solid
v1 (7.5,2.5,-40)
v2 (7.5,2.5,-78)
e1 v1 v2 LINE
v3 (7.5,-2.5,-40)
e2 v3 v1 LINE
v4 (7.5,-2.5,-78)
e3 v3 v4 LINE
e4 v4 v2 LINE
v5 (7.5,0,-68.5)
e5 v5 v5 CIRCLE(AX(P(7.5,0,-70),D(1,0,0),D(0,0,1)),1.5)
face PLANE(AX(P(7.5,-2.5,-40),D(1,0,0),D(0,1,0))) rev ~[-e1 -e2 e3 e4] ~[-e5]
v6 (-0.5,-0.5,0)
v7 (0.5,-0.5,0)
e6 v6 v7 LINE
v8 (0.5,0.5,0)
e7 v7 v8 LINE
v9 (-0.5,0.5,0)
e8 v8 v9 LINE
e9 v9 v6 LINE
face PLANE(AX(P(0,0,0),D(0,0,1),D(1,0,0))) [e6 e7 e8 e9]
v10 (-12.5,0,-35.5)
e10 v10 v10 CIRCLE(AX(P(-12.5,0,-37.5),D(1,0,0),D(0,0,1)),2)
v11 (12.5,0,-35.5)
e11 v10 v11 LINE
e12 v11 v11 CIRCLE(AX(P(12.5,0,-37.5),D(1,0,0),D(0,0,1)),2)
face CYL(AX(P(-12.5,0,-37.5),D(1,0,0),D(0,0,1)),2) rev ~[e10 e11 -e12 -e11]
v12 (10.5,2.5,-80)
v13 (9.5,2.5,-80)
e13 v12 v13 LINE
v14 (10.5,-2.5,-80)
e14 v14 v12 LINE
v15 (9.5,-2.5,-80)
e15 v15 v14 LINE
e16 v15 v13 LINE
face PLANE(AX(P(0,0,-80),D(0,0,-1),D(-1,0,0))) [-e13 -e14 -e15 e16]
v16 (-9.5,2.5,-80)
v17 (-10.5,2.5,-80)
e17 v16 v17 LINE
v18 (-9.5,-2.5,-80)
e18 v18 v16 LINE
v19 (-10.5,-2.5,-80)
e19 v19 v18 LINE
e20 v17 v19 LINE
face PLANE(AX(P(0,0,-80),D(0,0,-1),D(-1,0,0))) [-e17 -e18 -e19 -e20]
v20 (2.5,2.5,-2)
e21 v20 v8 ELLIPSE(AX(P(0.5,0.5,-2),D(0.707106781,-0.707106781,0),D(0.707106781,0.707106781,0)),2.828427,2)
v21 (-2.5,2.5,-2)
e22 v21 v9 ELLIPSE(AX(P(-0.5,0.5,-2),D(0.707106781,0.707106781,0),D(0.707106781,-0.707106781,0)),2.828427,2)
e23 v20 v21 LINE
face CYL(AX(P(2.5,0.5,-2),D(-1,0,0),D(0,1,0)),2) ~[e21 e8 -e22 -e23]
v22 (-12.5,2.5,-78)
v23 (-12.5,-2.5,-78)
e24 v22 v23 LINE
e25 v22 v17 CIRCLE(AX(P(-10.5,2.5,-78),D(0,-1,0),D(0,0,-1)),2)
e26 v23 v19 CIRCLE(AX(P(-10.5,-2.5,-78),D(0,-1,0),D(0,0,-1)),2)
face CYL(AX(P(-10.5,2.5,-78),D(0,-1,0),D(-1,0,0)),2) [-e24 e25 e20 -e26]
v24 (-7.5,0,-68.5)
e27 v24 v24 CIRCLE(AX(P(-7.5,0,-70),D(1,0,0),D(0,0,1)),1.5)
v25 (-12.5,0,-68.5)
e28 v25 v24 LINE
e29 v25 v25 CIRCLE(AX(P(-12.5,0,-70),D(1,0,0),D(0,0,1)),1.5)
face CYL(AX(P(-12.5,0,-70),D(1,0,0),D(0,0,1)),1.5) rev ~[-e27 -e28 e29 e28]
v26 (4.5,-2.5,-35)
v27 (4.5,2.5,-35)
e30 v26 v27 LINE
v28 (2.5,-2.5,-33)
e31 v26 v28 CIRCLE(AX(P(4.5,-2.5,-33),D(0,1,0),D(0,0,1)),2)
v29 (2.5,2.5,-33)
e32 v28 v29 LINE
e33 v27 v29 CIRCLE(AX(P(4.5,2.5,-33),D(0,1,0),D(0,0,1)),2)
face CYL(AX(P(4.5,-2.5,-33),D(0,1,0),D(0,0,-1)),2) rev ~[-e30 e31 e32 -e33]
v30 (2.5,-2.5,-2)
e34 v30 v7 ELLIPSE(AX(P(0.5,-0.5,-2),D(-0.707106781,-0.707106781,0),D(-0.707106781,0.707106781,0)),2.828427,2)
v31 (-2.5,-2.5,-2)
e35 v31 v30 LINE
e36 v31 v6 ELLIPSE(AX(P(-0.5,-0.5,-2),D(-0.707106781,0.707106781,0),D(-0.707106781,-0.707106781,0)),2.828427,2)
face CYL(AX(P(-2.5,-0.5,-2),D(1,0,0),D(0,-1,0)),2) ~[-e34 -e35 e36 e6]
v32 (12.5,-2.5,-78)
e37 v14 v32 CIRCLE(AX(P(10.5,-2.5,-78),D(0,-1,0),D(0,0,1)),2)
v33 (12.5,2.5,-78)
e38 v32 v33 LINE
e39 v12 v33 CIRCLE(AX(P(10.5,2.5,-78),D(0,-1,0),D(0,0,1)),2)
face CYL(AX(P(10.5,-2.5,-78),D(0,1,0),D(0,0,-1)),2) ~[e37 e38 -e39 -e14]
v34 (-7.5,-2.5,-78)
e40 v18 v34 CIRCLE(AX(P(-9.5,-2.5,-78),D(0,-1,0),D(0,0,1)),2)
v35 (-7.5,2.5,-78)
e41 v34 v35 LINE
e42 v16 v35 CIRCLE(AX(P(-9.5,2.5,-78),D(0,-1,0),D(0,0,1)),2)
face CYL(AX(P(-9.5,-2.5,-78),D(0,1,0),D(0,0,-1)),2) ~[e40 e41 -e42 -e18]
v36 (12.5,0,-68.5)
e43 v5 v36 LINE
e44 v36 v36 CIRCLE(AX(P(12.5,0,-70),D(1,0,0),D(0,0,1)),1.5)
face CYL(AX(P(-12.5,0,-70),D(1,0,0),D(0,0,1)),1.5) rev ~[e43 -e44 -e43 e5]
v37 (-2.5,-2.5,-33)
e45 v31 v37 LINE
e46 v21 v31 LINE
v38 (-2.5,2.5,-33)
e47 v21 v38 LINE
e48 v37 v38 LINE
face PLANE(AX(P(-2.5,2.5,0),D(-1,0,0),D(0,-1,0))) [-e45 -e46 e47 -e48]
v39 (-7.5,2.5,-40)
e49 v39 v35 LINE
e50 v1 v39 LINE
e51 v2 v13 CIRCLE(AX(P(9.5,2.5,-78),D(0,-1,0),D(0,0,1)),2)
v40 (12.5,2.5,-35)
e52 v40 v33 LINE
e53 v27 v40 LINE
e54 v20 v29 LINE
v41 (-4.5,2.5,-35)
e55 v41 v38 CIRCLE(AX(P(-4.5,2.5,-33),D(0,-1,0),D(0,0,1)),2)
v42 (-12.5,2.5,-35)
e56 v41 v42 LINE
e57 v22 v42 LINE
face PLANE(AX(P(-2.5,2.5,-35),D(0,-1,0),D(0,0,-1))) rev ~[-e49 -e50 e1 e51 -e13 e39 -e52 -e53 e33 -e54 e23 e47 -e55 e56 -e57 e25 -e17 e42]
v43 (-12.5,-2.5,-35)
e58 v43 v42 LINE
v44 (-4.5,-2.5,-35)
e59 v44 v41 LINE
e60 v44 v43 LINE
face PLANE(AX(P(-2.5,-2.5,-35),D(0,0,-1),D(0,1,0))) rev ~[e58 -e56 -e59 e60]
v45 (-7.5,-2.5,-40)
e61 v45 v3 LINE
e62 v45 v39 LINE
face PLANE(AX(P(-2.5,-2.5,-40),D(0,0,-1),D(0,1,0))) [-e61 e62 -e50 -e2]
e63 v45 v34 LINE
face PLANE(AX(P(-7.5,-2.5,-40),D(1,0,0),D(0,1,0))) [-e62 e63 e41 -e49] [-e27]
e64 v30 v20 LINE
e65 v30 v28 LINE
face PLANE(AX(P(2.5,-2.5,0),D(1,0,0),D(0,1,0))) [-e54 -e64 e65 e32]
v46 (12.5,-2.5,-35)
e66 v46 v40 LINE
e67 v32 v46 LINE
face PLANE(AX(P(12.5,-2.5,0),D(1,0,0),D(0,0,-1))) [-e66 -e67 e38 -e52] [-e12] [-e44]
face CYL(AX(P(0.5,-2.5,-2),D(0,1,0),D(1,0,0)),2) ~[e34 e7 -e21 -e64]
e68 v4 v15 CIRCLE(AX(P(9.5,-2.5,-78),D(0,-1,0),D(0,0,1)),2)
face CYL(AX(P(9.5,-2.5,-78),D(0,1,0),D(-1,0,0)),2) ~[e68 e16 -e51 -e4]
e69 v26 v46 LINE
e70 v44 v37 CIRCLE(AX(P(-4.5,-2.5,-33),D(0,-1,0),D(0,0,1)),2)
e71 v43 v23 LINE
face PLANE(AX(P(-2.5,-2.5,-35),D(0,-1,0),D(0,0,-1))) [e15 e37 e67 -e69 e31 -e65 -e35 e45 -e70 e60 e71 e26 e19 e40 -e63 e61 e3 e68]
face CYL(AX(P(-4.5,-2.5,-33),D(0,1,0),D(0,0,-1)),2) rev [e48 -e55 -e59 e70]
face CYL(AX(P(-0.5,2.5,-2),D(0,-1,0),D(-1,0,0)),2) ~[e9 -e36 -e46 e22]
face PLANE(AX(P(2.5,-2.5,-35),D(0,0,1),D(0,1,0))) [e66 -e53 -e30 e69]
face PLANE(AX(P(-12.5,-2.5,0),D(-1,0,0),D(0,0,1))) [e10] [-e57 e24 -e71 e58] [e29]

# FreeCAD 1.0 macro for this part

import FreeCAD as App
import Part
import Sketcher
from FreeCAD import Vector
Q = App.Units.Quantity


def edges_at(feature, points):
    """Names of the edges that pass closest to the given points."""
    edges = feature.Shape.Edges
    near = lambda p: min(range(len(edges)), key=lambda i: edges[i].distToShape(Part.Vertex(*p))[0])
    return sorted({f"Edge{near(p) + 1}" for p in points})


def add_polygon(sketch, points):
    """Adds a closed chain of lines whose ends are joined by coincident constraints."""
    first, n = sketch.GeometryCount, len(points)
    for a, b in zip(points, points[1:] + points[:1]):
        sketch.addGeometry(Part.LineSegment(App.Vector(*a, 0), App.Vector(*b, 0)), False)
    for i in range(n):
        sketch.addConstraint(Sketcher.Constraint("Coincident", first + i, 2, first + (i + 1) % n, 1))

doc = App.newDocument("Part")
body = doc.addObject("PartDesign::Body", "Body")

# Sketch on XY plane
sketch1 = body.newObject("Sketcher::SketchObject", "Sketch")
sketch1.AttachmentSupport = (doc.getObject("XY_Plane"), [""])
sketch1.MapMode = "FlatFace"
add_polygon(sketch1, [(-2, 2), (-2, -2), (2, -2), (2, 2)])  # lines 0-3
sketch1.addConstraint([
    Sketcher.Constraint("Vertical", 0),
    Sketcher.Constraint("Horizontal", 1),
    Sketcher.Constraint("Vertical", 2),
    Sketcher.Constraint("Horizontal", 3),
    Sketcher.Constraint("Symmetric", 0, 2, 2, 2, -1, 1),
    Sketcher.Constraint("Equal", 3, 0),
    Sketcher.Constraint("DistanceX", 1, 1, 1, 2, Q("5 mm")),
])
pad1 = body.newObject("PartDesign::Pad", "Pad")
pad1.Profile = sketch1
pad1.Length = 40
pad1.Reversed = True

# Sketch on YZ plane
sketch2 = body.newObject("Sketcher::SketchObject", "Sketch001")
sketch2.AttachmentSupport = (doc.getObject("YZ_Plane"), [""])
sketch2.MapMode = "FlatFace"
sketch2.AttachmentOffset = App.Placement(Vector(0, 0, 2.5), App.Rotation())
add_polygon(sketch2, [(2, -35), (-2, -35), (-2, -40), (2, -40)])  # lines 0-3
sketch2.addConstraint([
    Sketcher.Constraint("Horizontal", 0),
    Sketcher.Constraint("Vertical", 1),
    Sketcher.Constraint("Horizontal", 2),
    Sketcher.Constraint("Vertical", 3),
    Sketcher.Constraint("Equal", 2, 1),
    Sketcher.Constraint("DistanceX", 0, 2, 0, 1, Q("5 mm")),
    Sketcher.Constraint("DistanceY", 0, 2, -1, 1, Q("35 mm")),
    Sketcher.Constraint("DistanceX", 0, 2, -1, 1, Q("2.5 mm")),
])
pad2 = body.newObject("PartDesign::Pad", "Pad001")
pad2.Profile = sketch2
pad2.Length = 10

# Sketch on YZ plane
sketch3 = body.newObject("Sketcher::SketchObject", "Sketch002")
sketch3.AttachmentSupport = (doc.getObject("YZ_Plane"), [""])
sketch3.MapMode = "FlatFace"
sketch3.AttachmentOffset = App.Placement(Vector(0, 0, -2.5), App.Rotation())
add_polygon(sketch3, [(-2, -35), (2, -35), (2, -40), (-2, -40)])  # lines 0-3
sketch3.addConstraint([
    Sketcher.Constraint("Horizontal", 0),
    Sketcher.Constraint("Vertical", 1),
    Sketcher.Constraint("Horizontal", 2),
    Sketcher.Constraint("Vertical", 3),
    Sketcher.Constraint("Equal", 2, 1),
    Sketcher.Constraint("DistanceX", 0, 1, 0, 2, Q("5 mm")),
    Sketcher.Constraint("DistanceY", 0, 2, -1, 1, Q("35 mm")),
    Sketcher.Constraint("DistanceX", -1, 1, 0, 2, Q("2.5 mm")),
])
pad3 = body.newObject("PartDesign::Pad", "Pad002")
pad3.Profile = sketch3
pad3.Length = 10
pad3.Reversed = True

# Sketch on XY plane
sketch4 = body.newObject("Sketcher::SketchObject", "Sketch003")
sketch4.AttachmentSupport = (doc.getObject("XY_Plane"), [""])
sketch4.MapMode = "FlatFace"
sketch4.AttachmentOffset = App.Placement(Vector(0, 0, -40), App.Rotation())
add_polygon(sketch4, [(-8, -2), (-12, -2), (-12, 2), (-8, 2)])  # lines 0-3
add_polygon(sketch4, [(12, -2), (8, -2), (8, 2), (12, 2)])  # lines 4-7
sketch4.addConstraint([
    Sketcher.Constraint("Horizontal", 0),
    Sketcher.Constraint("Vertical", 1),
    Sketcher.Constraint("Horizontal", 2),
    Sketcher.Constraint("Vertical", 3),
    Sketcher.Constraint("Horizontal", 4),
    Sketcher.Constraint("Vertical", 5),
    Sketcher.Constraint("Horizontal", 6),
    Sketcher.Constraint("Vertical", 7),
    Sketcher.Constraint("Symmetric", 2, 2, 4, 2, -1, 1),
    Sketcher.Constraint("Symmetric", 0, 2, 6, 2, -1, 1),
    Sketcher.Constraint("Horizontal", 3, 2, 4, 2),
    Sketcher.Constraint("Equal", 6, 1),
    Sketcher.Constraint("DistanceX", 0, 2, 0, 1, Q("5 mm")),
    Sketcher.Constraint("DistanceX", 3, 2, 4, 2, Q("15 mm")),
])
pad4 = body.newObject("PartDesign::Pad", "Pad003")
pad4.Profile = sketch4
pad4.Length = 40
pad4.Reversed = True

# Sketch on YZ plane
sketch5 = body.newObject("Sketcher::SketchObject", "Sketch004")
sketch5.AttachmentSupport = (doc.getObject("YZ_Plane"), [""])
sketch5.MapMode = "FlatFace"
sketch5.AttachmentOffset = App.Placement(Vector(0, 0, -12.5), App.Rotation())
sketch5.addGeometry(Part.Circle(Vector(0, -70, 0), Vector(0, 0, 1), 1.5), False)
sketch5.addConstraint([
    Sketcher.Constraint("PointOnObject", 0, 3, -2),
    Sketcher.Constraint("Diameter", 0, Q("3 mm")),
    Sketcher.Constraint("DistanceY", 0, 3, -1, 1, Q("70 mm")),
])
doc.recompute()
hole = body.newObject("PartDesign::Hole", "Hole")
hole.Profile = sketch5
hole.ThreadType = "None"
hole.Diameter = 3
hole.DepthType = "ThroughAll"
hole.Reversed = True

# Sketch on YZ plane
sketch6 = body.newObject("Sketcher::SketchObject", "Sketch005")
sketch6.AttachmentSupport = (doc.getObject("YZ_Plane"), [""])
sketch6.MapMode = "FlatFace"
sketch6.AttachmentOffset = App.Placement(Vector(0, 0, -12.5), App.Rotation())
sketch6.addGeometry(Part.Circle(Vector(0, -37.5, 0), Vector(0, 0, 1), 2), False)
sketch6.addConstraint([
    Sketcher.Constraint("PointOnObject", 0, 3, -2),
    Sketcher.Constraint("Diameter", 0, Q("4 mm")),
    Sketcher.Constraint("DistanceY", 0, 3, -1, 1, Q("37.5 mm")),
])
doc.recompute()
hole2 = body.newObject("PartDesign::Hole", "Hole001")
hole2.Profile = sketch6
hole2.ThreadType = "None"
hole2.Diameter = 4
hole2.DepthType = "ThroughAll"
hole2.Reversed = True
doc.recompute()

fillet = body.newObject("PartDesign::Fillet", "Fillet")
fillet.Base = (hole2, edges_at(hole2, [
    (-7.5, 0, -80),
    (7.5, 0, -80),
    (-12.5, 0, -80),
    (12.5, 0, -80),
    (2.5, 0, 0),
    (-2.5, 0, 0),
    (0, 2.5, 0),
    (0, -2.5, 0),
    (-2.5, 0, -35),
    (2.5, 0, -35),
]))
fillet.Radius = 2

doc.recompute()
